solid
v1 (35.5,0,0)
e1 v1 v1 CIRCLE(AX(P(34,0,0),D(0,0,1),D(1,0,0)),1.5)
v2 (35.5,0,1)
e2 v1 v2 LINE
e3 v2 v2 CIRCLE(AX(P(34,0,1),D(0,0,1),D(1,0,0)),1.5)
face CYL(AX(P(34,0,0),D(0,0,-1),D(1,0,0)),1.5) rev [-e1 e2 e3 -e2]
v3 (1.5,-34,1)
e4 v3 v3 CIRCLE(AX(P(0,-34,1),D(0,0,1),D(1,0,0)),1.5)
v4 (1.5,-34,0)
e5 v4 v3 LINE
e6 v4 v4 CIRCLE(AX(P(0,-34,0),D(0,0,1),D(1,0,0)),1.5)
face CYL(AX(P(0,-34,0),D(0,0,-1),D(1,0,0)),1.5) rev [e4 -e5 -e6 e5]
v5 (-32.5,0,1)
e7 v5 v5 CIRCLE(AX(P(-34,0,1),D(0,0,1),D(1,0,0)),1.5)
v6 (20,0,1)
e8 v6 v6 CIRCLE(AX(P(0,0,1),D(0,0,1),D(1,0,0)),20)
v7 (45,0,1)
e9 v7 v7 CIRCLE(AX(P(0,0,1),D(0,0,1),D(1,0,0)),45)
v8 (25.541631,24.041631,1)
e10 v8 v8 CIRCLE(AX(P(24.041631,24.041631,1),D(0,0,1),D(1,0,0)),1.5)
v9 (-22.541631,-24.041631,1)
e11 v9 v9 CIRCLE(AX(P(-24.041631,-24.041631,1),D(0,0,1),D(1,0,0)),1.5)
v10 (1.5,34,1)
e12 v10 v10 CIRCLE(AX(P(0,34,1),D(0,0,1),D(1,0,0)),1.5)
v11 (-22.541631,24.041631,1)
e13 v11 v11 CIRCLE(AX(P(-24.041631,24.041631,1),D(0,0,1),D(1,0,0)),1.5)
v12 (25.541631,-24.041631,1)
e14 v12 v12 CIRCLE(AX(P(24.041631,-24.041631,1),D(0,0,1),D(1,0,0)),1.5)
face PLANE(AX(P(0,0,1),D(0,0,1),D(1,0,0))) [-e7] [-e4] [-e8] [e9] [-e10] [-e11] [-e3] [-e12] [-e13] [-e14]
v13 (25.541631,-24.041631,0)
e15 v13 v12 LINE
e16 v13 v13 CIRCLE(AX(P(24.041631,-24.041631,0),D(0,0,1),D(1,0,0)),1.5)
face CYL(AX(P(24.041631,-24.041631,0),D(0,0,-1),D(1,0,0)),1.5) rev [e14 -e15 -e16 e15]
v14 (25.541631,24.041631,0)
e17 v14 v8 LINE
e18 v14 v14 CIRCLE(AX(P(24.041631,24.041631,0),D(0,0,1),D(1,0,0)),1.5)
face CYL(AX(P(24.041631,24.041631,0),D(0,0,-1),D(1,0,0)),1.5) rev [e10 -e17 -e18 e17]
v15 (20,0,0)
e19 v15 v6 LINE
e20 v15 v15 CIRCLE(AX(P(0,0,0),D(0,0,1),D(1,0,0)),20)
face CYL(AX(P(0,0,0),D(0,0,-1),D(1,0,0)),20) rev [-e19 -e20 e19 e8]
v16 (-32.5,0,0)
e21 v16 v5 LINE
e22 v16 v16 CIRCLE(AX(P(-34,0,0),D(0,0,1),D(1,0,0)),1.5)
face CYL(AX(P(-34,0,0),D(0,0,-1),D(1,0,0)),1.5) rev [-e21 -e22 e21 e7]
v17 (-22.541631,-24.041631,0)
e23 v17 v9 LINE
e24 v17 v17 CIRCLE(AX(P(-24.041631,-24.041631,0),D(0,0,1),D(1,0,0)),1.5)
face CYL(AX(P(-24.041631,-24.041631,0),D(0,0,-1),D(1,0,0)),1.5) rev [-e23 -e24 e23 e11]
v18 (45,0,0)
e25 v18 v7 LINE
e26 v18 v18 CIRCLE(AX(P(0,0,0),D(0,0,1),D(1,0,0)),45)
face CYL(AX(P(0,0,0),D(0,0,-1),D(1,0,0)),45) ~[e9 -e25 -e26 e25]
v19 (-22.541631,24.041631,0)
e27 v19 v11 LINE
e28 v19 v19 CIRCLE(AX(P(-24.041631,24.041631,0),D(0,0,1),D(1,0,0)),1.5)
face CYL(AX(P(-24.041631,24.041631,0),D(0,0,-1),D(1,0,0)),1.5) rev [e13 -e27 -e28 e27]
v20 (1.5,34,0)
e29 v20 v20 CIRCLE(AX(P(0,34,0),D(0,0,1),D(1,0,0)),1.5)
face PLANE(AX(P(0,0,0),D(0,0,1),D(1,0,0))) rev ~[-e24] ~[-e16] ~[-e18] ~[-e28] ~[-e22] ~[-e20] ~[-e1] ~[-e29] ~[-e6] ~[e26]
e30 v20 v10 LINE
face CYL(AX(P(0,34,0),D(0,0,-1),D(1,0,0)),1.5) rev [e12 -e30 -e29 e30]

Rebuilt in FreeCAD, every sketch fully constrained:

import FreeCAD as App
import Part
import Sketcher

V = App.Vector
Q = App.Units.Quantity

doc = App.newDocument("Part")
body = doc.addObject("PartDesign::Body", "Body")

sketch1 = body.newObject("Sketcher::SketchObject", "Sketch")
sketch1.AttachmentSupport = (doc.getObject("XY_Plane"), [""])
sketch1.MapMode = "FlatFace"
sketch1.addGeometry([
    Part.Circle(V(0, 0, 0), V(0, 0, 1), 45),
    Part.Circle(V(-24, -24, 0), V(0, 0, 1), 1.5),
    Part.Circle(V(0, -34, 0), V(0, 0, 1), 1.5),
    Part.Circle(V(24, -24, 0), V(0, 0, 1), 1.5),
    Part.Circle(V(-34, 0, 0), V(0, 0, 1), 1.5),
    Part.Circle(V(-24, 24, 0), V(0, 0, 1), 1.5),
    Part.Circle(V(0, 0, 0), V(0, 0, 1), 20),
    Part.Circle(V(34, 0, 0), V(0, 0, 1), 1.5),
    Part.Circle(V(0, 34, 0), V(0, 0, 1), 1.5),
    Part.Circle(V(24, 24, 0), V(0, 0, 1), 1.5),
], False)
sketch1.addConstraint([
    Sketcher.Constraint("Coincident", 0, 3, -1, 1),
    Sketcher.Constraint("Coincident", 6, 3, -1, 1),
    Sketcher.Constraint("Equal", 1, 2),
    Sketcher.Constraint("Equal", 2, 3),
    Sketcher.Constraint("Equal", 3, 4),
    Sketcher.Constraint("Equal", 4, 5),
    Sketcher.Constraint("Equal", 5, 7),
    Sketcher.Constraint("Equal", 7, 8),
    Sketcher.Constraint("Equal", 8, 9),
    Sketcher.Constraint("Symmetric", 3, 3, 5, 3, -1, 1),
    Sketcher.Constraint("Symmetric", 4, 3, 7, 3, -1, 1),
    Sketcher.Constraint("Symmetric", 2, 3, 8, 3, -1, 1),
    Sketcher.Constraint("Symmetric", 1, 3, 9, 3, -1, 1),
    Sketcher.Constraint("Symmetric", 1, 3, 3, 3, -2),
    Sketcher.Constraint("PointOnObject", 2, 3, -2),
    Sketcher.Constraint("PointOnObject", 4, 3, -1),
    Sketcher.Constraint("Diameter", 0, Q("90 mm")),
    Sketcher.Constraint("Diameter", 1, Q("3 mm")),
    Sketcher.Constraint("Diameter", 6, Q("40 mm")),
    Sketcher.Constraint("DistanceY", 2, 3, -1, 1, Q("34 mm")),
    Sketcher.Constraint("DistanceX", 4, 3, -1, 1, Q("34 mm")),
    Sketcher.Constraint("DistanceX", 1, 3, -1, 1, Q("24.041631 mm")),
    Sketcher.Constraint("DistanceY", 1, 3, -1, 1, Q("24.041631 mm")),
])
pad1 = body.newObject("PartDesign::Pad", "Pad")
pad1.Profile = sketch1
pad1.Length = 1

doc.recompute()
